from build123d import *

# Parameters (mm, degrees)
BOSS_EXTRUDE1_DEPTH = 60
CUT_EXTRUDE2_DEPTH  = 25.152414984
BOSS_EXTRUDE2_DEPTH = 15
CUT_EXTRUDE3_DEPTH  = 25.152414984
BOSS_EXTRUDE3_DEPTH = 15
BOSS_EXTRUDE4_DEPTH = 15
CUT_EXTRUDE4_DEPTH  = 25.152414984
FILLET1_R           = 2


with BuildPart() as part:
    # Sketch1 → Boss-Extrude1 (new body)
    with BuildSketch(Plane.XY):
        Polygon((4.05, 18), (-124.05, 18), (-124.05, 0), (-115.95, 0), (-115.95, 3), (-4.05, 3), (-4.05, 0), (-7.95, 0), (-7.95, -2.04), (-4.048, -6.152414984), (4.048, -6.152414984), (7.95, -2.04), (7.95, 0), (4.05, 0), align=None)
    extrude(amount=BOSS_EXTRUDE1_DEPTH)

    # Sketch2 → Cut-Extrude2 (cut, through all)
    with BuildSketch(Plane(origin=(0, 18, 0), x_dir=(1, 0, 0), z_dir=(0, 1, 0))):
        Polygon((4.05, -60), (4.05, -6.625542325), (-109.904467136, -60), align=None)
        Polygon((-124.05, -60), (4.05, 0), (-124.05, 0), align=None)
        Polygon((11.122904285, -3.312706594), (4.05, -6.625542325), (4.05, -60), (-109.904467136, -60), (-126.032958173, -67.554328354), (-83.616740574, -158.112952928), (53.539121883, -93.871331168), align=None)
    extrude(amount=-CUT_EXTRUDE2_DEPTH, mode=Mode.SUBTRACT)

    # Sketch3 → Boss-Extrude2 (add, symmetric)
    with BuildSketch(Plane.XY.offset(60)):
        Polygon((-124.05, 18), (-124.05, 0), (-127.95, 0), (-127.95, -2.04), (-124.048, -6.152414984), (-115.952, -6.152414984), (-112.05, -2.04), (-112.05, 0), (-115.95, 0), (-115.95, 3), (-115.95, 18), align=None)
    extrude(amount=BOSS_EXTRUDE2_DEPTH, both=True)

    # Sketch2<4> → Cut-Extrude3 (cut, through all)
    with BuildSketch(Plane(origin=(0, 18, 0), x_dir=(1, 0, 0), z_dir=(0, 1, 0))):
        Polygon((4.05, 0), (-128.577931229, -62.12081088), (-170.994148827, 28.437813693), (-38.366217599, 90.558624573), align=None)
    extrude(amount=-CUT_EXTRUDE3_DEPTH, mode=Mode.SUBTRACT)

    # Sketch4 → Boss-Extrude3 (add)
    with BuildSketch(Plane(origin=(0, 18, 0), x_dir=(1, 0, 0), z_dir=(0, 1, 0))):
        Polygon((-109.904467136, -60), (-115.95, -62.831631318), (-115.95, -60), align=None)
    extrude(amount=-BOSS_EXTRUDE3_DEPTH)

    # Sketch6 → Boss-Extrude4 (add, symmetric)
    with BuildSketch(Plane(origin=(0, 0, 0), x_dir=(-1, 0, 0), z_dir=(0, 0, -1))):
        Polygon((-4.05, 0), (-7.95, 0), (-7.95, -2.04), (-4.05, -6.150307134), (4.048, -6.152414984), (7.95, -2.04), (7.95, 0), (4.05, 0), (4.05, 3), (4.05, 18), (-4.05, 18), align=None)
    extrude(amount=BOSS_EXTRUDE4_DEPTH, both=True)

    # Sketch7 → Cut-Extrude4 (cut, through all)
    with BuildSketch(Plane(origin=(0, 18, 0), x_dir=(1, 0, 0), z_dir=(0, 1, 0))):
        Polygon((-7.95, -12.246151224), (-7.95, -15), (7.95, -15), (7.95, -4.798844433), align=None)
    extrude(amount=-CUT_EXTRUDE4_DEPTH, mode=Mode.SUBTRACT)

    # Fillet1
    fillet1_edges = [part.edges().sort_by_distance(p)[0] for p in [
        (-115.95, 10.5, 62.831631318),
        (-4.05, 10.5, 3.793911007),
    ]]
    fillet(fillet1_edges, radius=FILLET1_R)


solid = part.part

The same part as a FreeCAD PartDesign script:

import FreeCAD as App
import Part
import Sketcher

V = App.Vector


def edges_at(feature, points):
    """Names of the edges that pass closest to the given points."""
    edges = feature.Shape.Edges
    near = lambda p: min(range(len(edges)), key=lambda i: edges[i].distToShape(Part.Vertex(*p))[0])
    return sorted({f"Edge{near(p) + 1}" for p in points})


def add_polygon(sketch, points):
    """Adds a closed chain of lines whose ends are joined by coincident constraints."""
    first, n = sketch.GeometryCount, len(points)
    for a, b in zip(points, points[1:] + points[:1]):
        sketch.addGeometry(Part.LineSegment(App.Vector(*a, 0), App.Vector(*b, 0)), False)
    for i in range(n):
        sketch.addConstraint(Sketcher.Constraint("Coincident", first + i, 2, first + (i + 1) % n, 1))

doc = App.newDocument("Part")
body = doc.addObject("PartDesign::Body", "Body")

sketch1 = body.newObject("Sketcher::SketchObject", "Sketch")
sketch1.AttachmentSupport = (doc.getObject("XY_Plane"), [""])
sketch1.MapMode = "FlatFace"
add_polygon(sketch1, [(4.05, 18), (-124.05, 18), (-124.05, 0), (-115.95, 0), (-115.95, 3), (-4.05, 3), (-4.05, 0), (-7.95, 0), (-7.95, -2.04), (-4.048, -6.152415), (4.048, -6.152415), (7.95, -2.04), (7.95, 0), (4.05, 0)])
sketch1.addConstraint([
    Sketcher.Constraint("Horizontal", 0),
    Sketcher.Constraint("Vertical", 1),
    Sketcher.Constraint("Horizontal", 2),
    Sketcher.Constraint("Vertical", 3),
    Sketcher.Constraint("Horizontal", 4),
    Sketcher.Constraint("Vertical", 5),
    Sketcher.Constraint("Horizontal", 6),
    Sketcher.Constraint("Vertical", 7),
    Sketcher.Constraint("Horizontal", 9),
    Sketcher.Constraint("Vertical", 11),
    Sketcher.Constraint("Horizontal", 12),
    Sketcher.Constraint("Vertical", 13),
    Sketcher.Constraint("Symmetric", 6, 2, 11, 2, -1, 1),
    Sketcher.Constraint("Symmetric", 5, 2, 12, 2, -2),
    Sketcher.Constraint("PointOnObject", 1, 2, -1),
    Sketcher.Constraint("Horizontal", 7, 2, 10, 2),
    Sketcher.Constraint("Equal", 8, 10),
    Sketcher.Constraint("DistanceY", 1, 2, 1, 1, 18.0),
    Sketcher.Constraint("DistanceY", 3, 1, 3, 2, 3.0),
    Sketcher.Constraint("DistanceX", 0, 2, 0, 1, 128.1),
    Sketcher.Constraint("DistanceX", 2, 1, 2, 2, 8.1),
    Sketcher.Constraint("DistanceX", 4, 1, 4, 2, 111.9),
    Sketcher.Constraint("DistanceX", 6, 2, 6, 1, 3.9),
    Sketcher.Constraint("DistanceY", 7, 2, 7, 1, 2.04),
    Sketcher.Constraint("DistanceX", 9, 1, 9, 2, 8.096),
    Sketcher.Constraint("Distance", 8, 5.669),
])
pad1 = body.newObject("PartDesign::Pad", "Pad")
pad1.Profile = sketch1
pad1.Length = 60

sketch2 = body.newObject("Sketcher::SketchObject", "Sketch001")
sketch2.AttachmentSupport = (doc.getObject("XZ_Plane"), [""])
sketch2.MapMode = "FlatFace"
sketch2.AttachmentOffset = App.Placement(V(0, 0, -18), App.Rotation())
add_polygon(sketch2, [(4.05, 6.625542), (-109.904467, 60), (-126.032958, 67.554328), (-83.616741, 158.112953), (53.539122, 93.871331), (11.122904, 3.312707)])
add_polygon(sketch2, [(-124.05, 60), (4.05, 0), (-124.05, 0)])
sketch2.addConstraint([
    Sketcher.Constraint("Horizontal", 7),
    Sketcher.Constraint("Vertical", 8),
    Sketcher.Constraint("PointOnObject", 6, 2, -1),
    Sketcher.Constraint("Parallel", 0, 1),
    Sketcher.Constraint("Perpendicular", 1, 2),
    Sketcher.Constraint("Perpendicular", 2, 3),
    Sketcher.Constraint("Perpendicular", 3, 4),
    Sketcher.Constraint("Perpendicular", 4, 5),
    Sketcher.Constraint("Parallel", 5, 6),
    Sketcher.Constraint("Horizontal", 0, 2, 8, 2),
    Sketcher.Constraint("Vertical", 5, 2, 6, 2),
    Sketcher.Constraint("DistanceY", 8, 1, 8, 2, 60.0),
    Sketcher.Constraint("Distance", 2, 100.0),
    Sketcher.Constraint("DistanceX", 7, 2, 7, 1, 128.1),
    Sketcher.Constraint("Distance", 1, 17.81),
    Sketcher.Constraint("DistanceX", -1, 1, 5, 2, 4.05),
    Sketcher.Constraint("Distance", 3, 151.455329),
    Sketcher.Constraint("DistanceX", 1, 2, -1, 1, 126.032958),
])
pocket1 = body.newObject("PartDesign::Pocket", "Pocket")
pocket1.Profile = sketch2
pocket1.Type = "ThroughAll"
pocket1.Reversed = True

sketch3 = body.newObject("Sketcher::SketchObject", "Sketch002")
sketch3.AttachmentSupport = (doc.getObject("XY_Plane"), [""])
sketch3.MapMode = "FlatFace"
sketch3.AttachmentOffset = App.Placement(V(0, 0, 60), App.Rotation())
add_polygon(sketch3, [(-124.05, 18), (-124.05, 0), (-127.95, 0), (-127.95, -2.04), (-124.048, -6.152415), (-115.952, -6.152415), (-112.05, -2.04), (-112.05, 0), (-115.95, 0), (-115.95, 18)])
sketch3.addConstraint([
    Sketcher.Constraint("Vertical", 0),
    Sketcher.Constraint("Horizontal", 1),
    Sketcher.Constraint("Vertical", 2),
    Sketcher.Constraint("Horizontal", 4),
    Sketcher.Constraint("Vertical", 6),
    Sketcher.Constraint("Horizontal", 7),
    Sketcher.Constraint("Vertical", 8),
    Sketcher.Constraint("Horizontal", 9),
    Sketcher.Constraint("PointOnObject", 0, 2, -1),
    Sketcher.Constraint("PointOnObject", 6, 2, -1),
    Sketcher.Constraint("Horizontal", 2, 2, 5, 2),
    Sketcher.Constraint("Equal", 1, 7),
    Sketcher.Constraint("Equal", 3, 5),
    Sketcher.Constraint("DistanceY", 0, 2, 0, 1, 18.0),
    Sketcher.Constraint("DistanceX", 1, 2, 1, 1, 3.9),
    Sketcher.Constraint("DistanceX", 9, 2, 9, 1, 8.1),
    Sketcher.Constraint("DistanceY", 2, 2, 2, 1, 2.04),
    Sketcher.Constraint("DistanceX", 4, 1, 4, 2, 8.096),
    Sketcher.Constraint("DistanceX", 0, 2, -1, 1, 124.05),
    Sketcher.Constraint("Distance", 3, 5.669),
])
pad2 = body.newObject("PartDesign::Pad", "Pad001")
pad2.Profile = sketch3
pad2.Length = 30
pad2.Midplane = True

sketch4 = body.newObject("Sketcher::SketchObject", "Sketch003")
sketch4.AttachmentSupport = (doc.getObject("XZ_Plane"), [""])
sketch4.MapMode = "FlatFace"
sketch4.AttachmentOffset = App.Placement(V(0, 0, -18), App.Rotation())
add_polygon(sketch4, [(-128.577931, 62.120811), (4.05, 0), (-38.366218, -90.558625), (-170.994149, -28.437814)])
sketch4.addConstraint([
    Sketcher.Constraint("PointOnObject", 0, 2, -1),
    Sketcher.Constraint("Perpendicular", 0, 1),
    Sketcher.Constraint("Perpendicular", 1, 2),
    Sketcher.Constraint("Perpendicular", 2, 3),
    Sketcher.Constraint("Distance", 1, 100.0),
    Sketcher.Constraint("DistanceX", -1, 1, 0, 2, 4.05),
    Sketcher.Constraint("Distance", 0, 146.455329),
    Sketcher.Constraint("DistanceX", 2, 2, -1, 1, 170.994149),
])
pocket2 = body.newObject("PartDesign::Pocket", "Pocket001")
pocket2.Profile = sketch4
pocket2.Type = "ThroughAll"
pocket2.Reversed = True

sketch5 = body.newObject("Sketcher::SketchObject", "Sketch004")
sketch5.AttachmentSupport = (doc.getObject("XZ_Plane"), [""])
sketch5.MapMode = "FlatFace"
sketch5.AttachmentOffset = App.Placement(V(0, 0, -18), App.Rotation())
add_polygon(sketch5, [(-115.95, 62.831631), (-109.904467, 60), (-115.95, 60)])
sketch5.addConstraint([
    Sketcher.Constraint("Horizontal", 1),
    Sketcher.Constraint("Vertical", 2),
    Sketcher.Constraint("DistanceY", -1, 1, 0, 2, 60.0),
    Sketcher.Constraint("DistanceX", 1, 2, -1, 1, 115.95),
    Sketcher.Constraint("DistanceY", 2, 1, 2, 2, 2.831631),
    Sketcher.Constraint("DistanceX", 1, 2, 1, 1, 6.045533),
])
pad3 = body.newObject("PartDesign::Pad", "Pad002")
pad3.Profile = sketch5
pad3.Length = 15

sketch6 = body.newObject("Sketcher::SketchObject", "Sketch005")
sketch6.AttachmentSupport = (doc.getObject("XY_Plane"), [""])
sketch6.MapMode = "FlatFace"
add_polygon(sketch6, [(4.05, 0), (7.95, 0), (7.95, -2.04), (4.05, -6.150307), (-4.048, -6.152415), (-7.95, -2.04), (-7.95, 0), (-4.05, 0), (-4.05, 18), (4.05, 18)])
sketch6.addConstraint([
    Sketcher.Constraint("Horizontal", 0),
    Sketcher.Constraint("Vertical", 1),
    Sketcher.Constraint("Vertical", 5),
    Sketcher.Constraint("Horizontal", 6),
    Sketcher.Constraint("Vertical", 7),
    Sketcher.Constraint("Horizontal", 8),
    Sketcher.Constraint("Vertical", 9),
    Sketcher.Constraint("Symmetric", 0, 2, 5, 2, -1, 1),
    Sketcher.Constraint("Symmetric", 6, 2, 9, 2, -2),
    Sketcher.Constraint("Horizontal", 1, 2, 4, 2),
    Sketcher.Constraint("Vertical", 2, 2, 8, 2),
    Sketcher.Constraint("DistanceY", 7, 1, 7, 2, 18.0),
    Sketcher.Constraint("DistanceX", 0, 1, 0, 2, 3.9),
    Sketcher.Constraint("DistanceX", 8, 1, 8, 2, 8.1),
    Sketcher.Constraint("DistanceY", 1, 2, 1, 1, 2.04),
    Sketcher.Constraint("Distance", 3, 8.098),
    Sketcher.Constraint("Distance", 4, 5.669),
    Sketcher.Constraint("Distance", 2, 5.666094),
])
pad4 = body.newObject("PartDesign::Pad", "Pad003")
pad4.Profile = sketch6
pad4.Length = 30
pad4.Midplane = True

sketch7 = body.newObject("Sketcher::SketchObject", "Sketch006")
sketch7.AttachmentSupport = (doc.getObject("XZ_Plane"), [""])
sketch7.MapMode = "FlatFace"
sketch7.AttachmentOffset = App.Placement(V(0, 0, -18), App.Rotation())
add_polygon(sketch7, [(-7.95, 12.246151), (-7.95, 15), (7.95, 15), (7.95, 4.798844)])
sketch7.addConstraint([
    Sketcher.Constraint("Vertical", 0),
    Sketcher.Constraint("Horizontal", 1),
    Sketcher.Constraint("Vertical", 2),
    Sketcher.Constraint("DistanceX", 1, 1, 1, 2, 15.9),
    Sketcher.Constraint("DistanceY", -1, 1, 0, 2, 15.0),
    Sketcher.Constraint("DistanceX", 0, 2, -1, 1, 7.95),
    Sketcher.Constraint("DistanceY", 0, 1, 0, 2, 2.753849),
    Sketcher.Constraint("DistanceY", 2, 2, 2, 1, 10.201156),
])
pocket3 = body.newObject("PartDesign::Pocket", "Pocket002")
pocket3.Profile = sketch7
pocket3.Type = "ThroughAll"
pocket3.Reversed = True
doc.recompute()

fillet = body.newObject("PartDesign::Fillet", "Fillet")
fillet.Base = (pocket3, edges_at(pocket3, [(-115.95, 10.5, 62.832), (-4.05, 10.5, 3.794)]))
fillet.Radius = 2

doc.recompute()
